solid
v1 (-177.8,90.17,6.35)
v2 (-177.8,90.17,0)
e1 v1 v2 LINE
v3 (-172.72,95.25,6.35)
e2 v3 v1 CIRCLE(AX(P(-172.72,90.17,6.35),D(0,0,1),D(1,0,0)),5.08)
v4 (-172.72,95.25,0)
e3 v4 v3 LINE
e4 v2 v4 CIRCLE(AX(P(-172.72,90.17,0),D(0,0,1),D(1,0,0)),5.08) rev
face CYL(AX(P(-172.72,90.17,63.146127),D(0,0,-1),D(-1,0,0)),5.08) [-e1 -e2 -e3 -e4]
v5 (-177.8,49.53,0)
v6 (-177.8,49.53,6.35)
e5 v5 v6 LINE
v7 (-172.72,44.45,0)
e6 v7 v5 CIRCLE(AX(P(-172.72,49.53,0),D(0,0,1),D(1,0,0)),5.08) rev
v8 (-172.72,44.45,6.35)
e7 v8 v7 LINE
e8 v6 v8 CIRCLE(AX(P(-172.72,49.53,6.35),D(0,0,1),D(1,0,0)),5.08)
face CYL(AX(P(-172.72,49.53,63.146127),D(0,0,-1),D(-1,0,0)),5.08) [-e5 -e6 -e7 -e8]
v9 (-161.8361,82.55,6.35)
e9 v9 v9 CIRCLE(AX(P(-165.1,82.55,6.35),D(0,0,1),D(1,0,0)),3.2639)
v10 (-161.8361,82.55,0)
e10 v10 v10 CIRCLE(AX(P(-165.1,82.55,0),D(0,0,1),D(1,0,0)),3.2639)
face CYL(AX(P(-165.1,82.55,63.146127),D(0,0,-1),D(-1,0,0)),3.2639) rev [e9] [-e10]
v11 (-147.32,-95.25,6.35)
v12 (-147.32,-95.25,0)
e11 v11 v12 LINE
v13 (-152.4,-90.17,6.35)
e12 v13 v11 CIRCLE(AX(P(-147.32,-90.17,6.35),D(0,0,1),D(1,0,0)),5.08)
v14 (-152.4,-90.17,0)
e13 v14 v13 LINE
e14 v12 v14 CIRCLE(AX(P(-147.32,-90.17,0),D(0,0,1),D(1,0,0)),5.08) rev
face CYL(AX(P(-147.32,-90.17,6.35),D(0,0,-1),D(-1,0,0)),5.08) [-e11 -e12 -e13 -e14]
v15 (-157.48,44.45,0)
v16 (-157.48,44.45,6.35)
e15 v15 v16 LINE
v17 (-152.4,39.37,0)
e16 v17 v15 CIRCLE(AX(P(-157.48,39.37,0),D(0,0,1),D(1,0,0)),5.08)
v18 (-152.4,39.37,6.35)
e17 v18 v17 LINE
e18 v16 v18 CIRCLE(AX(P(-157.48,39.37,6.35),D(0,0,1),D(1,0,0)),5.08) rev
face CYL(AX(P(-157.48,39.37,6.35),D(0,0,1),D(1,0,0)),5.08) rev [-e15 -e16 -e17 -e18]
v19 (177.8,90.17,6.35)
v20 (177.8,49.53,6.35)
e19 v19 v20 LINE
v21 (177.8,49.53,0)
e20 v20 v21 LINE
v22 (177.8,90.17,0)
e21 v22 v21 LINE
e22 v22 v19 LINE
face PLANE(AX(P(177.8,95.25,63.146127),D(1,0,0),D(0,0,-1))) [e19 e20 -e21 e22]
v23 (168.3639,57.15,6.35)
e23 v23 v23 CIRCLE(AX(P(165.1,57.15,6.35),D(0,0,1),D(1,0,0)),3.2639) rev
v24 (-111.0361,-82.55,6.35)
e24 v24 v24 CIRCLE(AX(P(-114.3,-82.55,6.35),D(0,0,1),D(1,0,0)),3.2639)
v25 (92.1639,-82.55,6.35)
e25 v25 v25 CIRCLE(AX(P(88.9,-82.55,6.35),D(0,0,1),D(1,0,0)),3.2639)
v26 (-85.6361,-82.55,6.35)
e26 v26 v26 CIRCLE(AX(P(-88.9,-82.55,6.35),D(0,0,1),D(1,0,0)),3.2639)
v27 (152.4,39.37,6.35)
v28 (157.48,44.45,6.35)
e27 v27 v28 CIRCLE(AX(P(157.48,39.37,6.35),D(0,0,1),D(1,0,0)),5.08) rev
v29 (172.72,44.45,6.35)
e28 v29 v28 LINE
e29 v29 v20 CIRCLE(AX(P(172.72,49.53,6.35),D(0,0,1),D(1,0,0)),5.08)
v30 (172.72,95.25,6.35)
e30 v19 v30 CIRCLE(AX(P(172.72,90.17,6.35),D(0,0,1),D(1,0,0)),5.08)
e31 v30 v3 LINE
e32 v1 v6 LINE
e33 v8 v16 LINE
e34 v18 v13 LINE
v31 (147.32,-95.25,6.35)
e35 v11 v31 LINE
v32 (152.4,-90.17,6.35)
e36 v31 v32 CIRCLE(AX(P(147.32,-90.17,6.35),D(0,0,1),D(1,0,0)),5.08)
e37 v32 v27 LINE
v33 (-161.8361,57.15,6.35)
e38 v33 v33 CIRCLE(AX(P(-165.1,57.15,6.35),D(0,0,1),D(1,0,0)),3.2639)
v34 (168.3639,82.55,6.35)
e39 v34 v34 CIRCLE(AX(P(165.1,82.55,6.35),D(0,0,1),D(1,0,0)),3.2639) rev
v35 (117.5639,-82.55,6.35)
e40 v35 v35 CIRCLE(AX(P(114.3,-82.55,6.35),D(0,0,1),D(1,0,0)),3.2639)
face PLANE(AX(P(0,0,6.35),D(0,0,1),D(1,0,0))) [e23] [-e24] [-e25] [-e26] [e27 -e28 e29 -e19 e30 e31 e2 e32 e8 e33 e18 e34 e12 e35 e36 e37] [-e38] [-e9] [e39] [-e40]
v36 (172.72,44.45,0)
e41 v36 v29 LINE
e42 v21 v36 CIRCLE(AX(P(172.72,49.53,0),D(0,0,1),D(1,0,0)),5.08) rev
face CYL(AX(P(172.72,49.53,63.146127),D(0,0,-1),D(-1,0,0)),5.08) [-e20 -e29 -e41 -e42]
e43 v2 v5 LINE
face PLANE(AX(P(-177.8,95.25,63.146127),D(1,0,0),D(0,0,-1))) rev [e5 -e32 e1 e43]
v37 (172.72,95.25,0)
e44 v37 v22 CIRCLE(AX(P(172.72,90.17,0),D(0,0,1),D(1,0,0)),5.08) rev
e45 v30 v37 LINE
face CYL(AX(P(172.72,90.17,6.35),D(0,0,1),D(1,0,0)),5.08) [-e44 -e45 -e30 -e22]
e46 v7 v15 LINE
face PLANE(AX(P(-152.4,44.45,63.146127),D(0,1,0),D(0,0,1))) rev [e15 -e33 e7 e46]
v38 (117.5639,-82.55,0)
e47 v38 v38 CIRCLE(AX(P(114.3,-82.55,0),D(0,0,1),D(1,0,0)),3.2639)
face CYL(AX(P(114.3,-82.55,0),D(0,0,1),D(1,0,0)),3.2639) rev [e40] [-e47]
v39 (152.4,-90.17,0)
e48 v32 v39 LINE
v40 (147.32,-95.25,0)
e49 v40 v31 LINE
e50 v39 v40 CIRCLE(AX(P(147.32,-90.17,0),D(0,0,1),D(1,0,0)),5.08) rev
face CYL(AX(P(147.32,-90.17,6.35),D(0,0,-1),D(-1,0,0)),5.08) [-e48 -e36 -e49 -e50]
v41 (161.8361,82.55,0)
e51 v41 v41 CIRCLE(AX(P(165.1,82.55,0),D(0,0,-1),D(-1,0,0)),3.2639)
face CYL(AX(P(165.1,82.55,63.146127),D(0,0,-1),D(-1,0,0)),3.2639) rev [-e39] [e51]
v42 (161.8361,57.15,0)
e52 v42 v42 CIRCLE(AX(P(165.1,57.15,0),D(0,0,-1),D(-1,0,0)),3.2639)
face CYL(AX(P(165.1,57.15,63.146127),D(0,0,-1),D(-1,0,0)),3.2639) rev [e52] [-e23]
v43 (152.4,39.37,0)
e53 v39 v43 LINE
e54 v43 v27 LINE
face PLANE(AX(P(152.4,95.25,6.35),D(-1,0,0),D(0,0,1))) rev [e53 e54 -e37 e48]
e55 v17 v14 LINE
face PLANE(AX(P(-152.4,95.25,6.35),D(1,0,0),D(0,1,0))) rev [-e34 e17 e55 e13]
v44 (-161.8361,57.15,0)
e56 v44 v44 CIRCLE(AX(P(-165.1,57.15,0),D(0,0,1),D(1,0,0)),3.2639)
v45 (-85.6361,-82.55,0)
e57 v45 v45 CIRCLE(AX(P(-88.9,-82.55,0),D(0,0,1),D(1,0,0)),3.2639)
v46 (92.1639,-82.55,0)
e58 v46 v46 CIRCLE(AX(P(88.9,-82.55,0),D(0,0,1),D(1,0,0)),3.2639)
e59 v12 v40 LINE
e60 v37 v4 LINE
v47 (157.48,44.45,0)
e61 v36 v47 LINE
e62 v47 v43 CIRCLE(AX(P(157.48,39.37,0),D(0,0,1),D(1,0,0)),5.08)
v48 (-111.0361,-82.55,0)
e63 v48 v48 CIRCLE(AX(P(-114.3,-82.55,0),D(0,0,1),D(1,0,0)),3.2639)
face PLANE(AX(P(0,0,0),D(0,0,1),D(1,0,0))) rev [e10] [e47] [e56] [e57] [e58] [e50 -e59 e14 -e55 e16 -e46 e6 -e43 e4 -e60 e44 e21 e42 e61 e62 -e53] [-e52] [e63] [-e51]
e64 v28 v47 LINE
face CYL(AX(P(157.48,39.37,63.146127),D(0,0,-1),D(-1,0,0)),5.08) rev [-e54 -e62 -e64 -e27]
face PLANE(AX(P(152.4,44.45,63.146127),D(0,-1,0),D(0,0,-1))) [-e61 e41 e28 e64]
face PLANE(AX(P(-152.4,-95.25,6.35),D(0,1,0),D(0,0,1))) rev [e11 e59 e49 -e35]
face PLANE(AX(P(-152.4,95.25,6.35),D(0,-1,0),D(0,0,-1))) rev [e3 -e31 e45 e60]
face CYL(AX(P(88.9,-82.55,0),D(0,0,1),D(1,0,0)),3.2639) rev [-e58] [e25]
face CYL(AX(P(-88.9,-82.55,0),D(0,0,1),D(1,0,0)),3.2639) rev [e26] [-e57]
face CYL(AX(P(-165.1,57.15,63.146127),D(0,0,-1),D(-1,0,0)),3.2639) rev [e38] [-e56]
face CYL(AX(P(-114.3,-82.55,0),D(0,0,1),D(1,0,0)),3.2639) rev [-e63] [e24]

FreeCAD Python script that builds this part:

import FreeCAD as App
import Part
import Sketcher
Q = App.Units.Quantity


def edges_at(feature, points):
    """Names of the edges that pass closest to the given points."""
    edges = feature.Shape.Edges
    near = lambda p: min(range(len(edges)), key=lambda i: edges[i].distToShape(Part.Vertex(*p))[0])
    return sorted({f"Edge{near(p) + 1}" for p in points})

doc = App.newDocument("Part")
body = doc.addObject("PartDesign::Body", "Body")

# Sketch on XY plane
sketch1 = doc.addObject("Sketcher::SketchObject", "Sketch")
body.addObject(sketch1)
sketch1.AttachmentSupport = (doc.XY_Plane, [""])
sketch1.MapMode = "FlatFace"
sketch1.addGeometry([
    Part.LineSegment(App.Vector(-152.4, 95.25, 0), App.Vector(-152.4, -95.25, 0)),
    Part.LineSegment(App.Vector(-152.4, -95.25, 0), App.Vector(152.4, -95.25, 0)),
    Part.LineSegment(App.Vector(152.4, -95.25, 0), App.Vector(152.4, 95.25, 0)),
    Part.LineSegment(App.Vector(152.4, 95.25, 0), App.Vector(-152.4, 95.25, 0)),
], False)
sketch1.addConstraint([
    Sketcher.Constraint("Coincident", 0, 2, 1, 1),
    Sketcher.Constraint("Coincident", 1, 2, 2, 1),
    Sketcher.Constraint("Coincident", 2, 2, 3, 1),
    Sketcher.Constraint("Coincident", 3, 2, 0, 1),
    Sketcher.Constraint("Vertical", 0),
    Sketcher.Constraint("Horizontal", 1),
    Sketcher.Constraint("Vertical", 2),
    Sketcher.Constraint("Horizontal", 3),
    Sketcher.Constraint("Symmetric", 0, 2, 2, 2, -1, 1),
    Sketcher.Constraint("DistanceX", 1, 1, 1, 2, Q("12 in")),
    Sketcher.Constraint("DistanceY", 0, 2, 0, 1, Q("7.5 in")),
])
pad1 = doc.addObject("PartDesign::Pad", "Pad")
body.addObject(pad1)
pad1.Profile = sketch1
pad1.Length = Q("0.25 in")

# Sketch on XY plane
sketch2 = doc.addObject("Sketcher::SketchObject", "Sketch001")
body.addObject(sketch2)
sketch2.AttachmentSupport = (doc.XY_Plane, [""])
sketch2.MapMode = "FlatFace"
sketch2.AttachmentOffset = App.Placement(App.Vector(0, 0, 0.25 * 25.4), App.Rotation())
sketch2.addGeometry([
    Part.Circle(App.Vector(-114.3, -82.55, 0), App.Vector(0, 0, 1), 3.2639),
    Part.Circle(App.Vector(-88.9, -82.55, 0), App.Vector(0, 0, 1), 3.2639),
    Part.Circle(App.Vector(88.9, -82.55, 0), App.Vector(0, 0, 1), 3.2639),
    Part.Circle(App.Vector(114.3, -82.55, 0), App.Vector(0, 0, 1), 3.2639),
], False)
sketch2.addConstraint([
    Sketcher.Constraint("Equal", 0, 1),
    Sketcher.Constraint("Equal", 1, 2),
    Sketcher.Constraint("Equal", 2, 3),
    Sketcher.Constraint("Symmetric", 1, 3, 2, 3, -2),
    Sketcher.Constraint("Symmetric", 0, 3, 3, 3, -2),
    Sketcher.Constraint("Horizontal", 0, 3, 1, 3),
    Sketcher.Constraint("Diameter", 0, Q("0.257 in")),
    Sketcher.Constraint("DistanceX", 0, 3, 1, 3, Q("1 in")),
    Sketcher.Constraint("DistanceX", 1, 3, 2, 3, Q("7 in")),
    Sketcher.Constraint("DistanceY", 0, 3, -1, 1, Q("3.25 in")),
])
pocket1 = doc.addObject("PartDesign::Pocket", "Pocket")
body.addObject(pocket1)
pocket1.Profile = sketch2
pocket1.Type = "ThroughAll"

# Sketch on XY plane
sketch3 = doc.addObject("Sketcher::SketchObject", "Sketch002")
body.addObject(sketch3)
sketch3.AttachmentSupport = (doc.XY_Plane, [""])
sketch3.MapMode = "FlatFace"
sketch3.addGeometry([
    Part.LineSegment(App.Vector(-177.8, 95.25, 0), App.Vector(-177.8, 44.45, 0)),  # 0
    Part.LineSegment(App.Vector(-177.8, 44.45, 0), App.Vector(-152.4, 44.45, 0)),  # 1
    Part.LineSegment(App.Vector(-152.4, 44.45, 0), App.Vector(-152.4, 95.25, 0)),  # 2
    Part.LineSegment(App.Vector(-152.4, 95.25, 0), App.Vector(-177.8, 95.25, 0)),  # 3
    Part.Circle(App.Vector(-165.1, 57.15, 0), App.Vector(0, 0, 1), 3.2639),  # 4
    Part.Circle(App.Vector(-165.1, 82.55, 0), App.Vector(0, 0, 1), 3.2639),  # 5
], False)
sketch3.addConstraint([
    Sketcher.Constraint("Coincident", 0, 2, 1, 1),
    Sketcher.Constraint("Coincident", 1, 2, 2, 1),
    Sketcher.Constraint("Coincident", 2, 2, 3, 1),
    Sketcher.Constraint("Coincident", 3, 2, 0, 1),
    Sketcher.Constraint("Vertical", 0),
    Sketcher.Constraint("Horizontal", 1),
    Sketcher.Constraint("Vertical", 2),
    Sketcher.Constraint("Horizontal", 3),
    Sketcher.Constraint("Equal", 4, 5),
    Sketcher.Constraint("Vertical", 4, 3, 5, 3),
    Sketcher.Constraint("DistanceX", 1, 1, 1, 2, Q("1 in")),
    Sketcher.Constraint("DistanceY", 0, 2, 0, 1, Q("2 in")),
    Sketcher.Constraint("Diameter", 4, Q("0.257 in")),
    Sketcher.Constraint("DistanceX", 0, 2, -1, 1, Q("7 in")),
    Sketcher.Constraint("DistanceY", 4, 3, 5, 3, Q("1 in")),
    Sketcher.Constraint("DistanceX", 4, 3, -1, 1, Q("6.5 in")),
    Sketcher.Constraint("DistanceY", 0, 2, 4, 3, Q("0.5 in")),
    Sketcher.Constraint("DistanceY", -1, 1, 4, 3, Q("2.25 in")),
])
pad2 = doc.addObject("PartDesign::Pad", "Pad001")
body.addObject(pad2)
pad2.Profile = sketch3
pad2.Length = Q("0.25 in")
doc.recompute()

mirrored = doc.addObject("PartDesign::Mirrored", "Mirrored")
body.addObject(mirrored)
mirrored.Originals = [pad2]
mirrored.MirrorPlane = (doc.YZ_Plane, [""])
body.Tip = mirrored
doc.recompute()

fillet = doc.addObject("PartDesign::Fillet", "Fillet")
body.addObject(fillet)
fillet.Base = (mirrored, edges_at(mirrored, [
    (-177.8, 44.45, 3.175),
    (-177.8, 95.25, 3.175),
    (-152.4, 44.45, 3.175),
    (152.4, 44.45, 3.175),
    (177.8, 44.45, 3.175),
    (177.8, 95.25, 3.175),
    (152.4, -95.25, 3.175),
    (-152.4, -95.25, 3.175),
]))
fillet.Radius = Q("0.2 in")

doc.recompute()
